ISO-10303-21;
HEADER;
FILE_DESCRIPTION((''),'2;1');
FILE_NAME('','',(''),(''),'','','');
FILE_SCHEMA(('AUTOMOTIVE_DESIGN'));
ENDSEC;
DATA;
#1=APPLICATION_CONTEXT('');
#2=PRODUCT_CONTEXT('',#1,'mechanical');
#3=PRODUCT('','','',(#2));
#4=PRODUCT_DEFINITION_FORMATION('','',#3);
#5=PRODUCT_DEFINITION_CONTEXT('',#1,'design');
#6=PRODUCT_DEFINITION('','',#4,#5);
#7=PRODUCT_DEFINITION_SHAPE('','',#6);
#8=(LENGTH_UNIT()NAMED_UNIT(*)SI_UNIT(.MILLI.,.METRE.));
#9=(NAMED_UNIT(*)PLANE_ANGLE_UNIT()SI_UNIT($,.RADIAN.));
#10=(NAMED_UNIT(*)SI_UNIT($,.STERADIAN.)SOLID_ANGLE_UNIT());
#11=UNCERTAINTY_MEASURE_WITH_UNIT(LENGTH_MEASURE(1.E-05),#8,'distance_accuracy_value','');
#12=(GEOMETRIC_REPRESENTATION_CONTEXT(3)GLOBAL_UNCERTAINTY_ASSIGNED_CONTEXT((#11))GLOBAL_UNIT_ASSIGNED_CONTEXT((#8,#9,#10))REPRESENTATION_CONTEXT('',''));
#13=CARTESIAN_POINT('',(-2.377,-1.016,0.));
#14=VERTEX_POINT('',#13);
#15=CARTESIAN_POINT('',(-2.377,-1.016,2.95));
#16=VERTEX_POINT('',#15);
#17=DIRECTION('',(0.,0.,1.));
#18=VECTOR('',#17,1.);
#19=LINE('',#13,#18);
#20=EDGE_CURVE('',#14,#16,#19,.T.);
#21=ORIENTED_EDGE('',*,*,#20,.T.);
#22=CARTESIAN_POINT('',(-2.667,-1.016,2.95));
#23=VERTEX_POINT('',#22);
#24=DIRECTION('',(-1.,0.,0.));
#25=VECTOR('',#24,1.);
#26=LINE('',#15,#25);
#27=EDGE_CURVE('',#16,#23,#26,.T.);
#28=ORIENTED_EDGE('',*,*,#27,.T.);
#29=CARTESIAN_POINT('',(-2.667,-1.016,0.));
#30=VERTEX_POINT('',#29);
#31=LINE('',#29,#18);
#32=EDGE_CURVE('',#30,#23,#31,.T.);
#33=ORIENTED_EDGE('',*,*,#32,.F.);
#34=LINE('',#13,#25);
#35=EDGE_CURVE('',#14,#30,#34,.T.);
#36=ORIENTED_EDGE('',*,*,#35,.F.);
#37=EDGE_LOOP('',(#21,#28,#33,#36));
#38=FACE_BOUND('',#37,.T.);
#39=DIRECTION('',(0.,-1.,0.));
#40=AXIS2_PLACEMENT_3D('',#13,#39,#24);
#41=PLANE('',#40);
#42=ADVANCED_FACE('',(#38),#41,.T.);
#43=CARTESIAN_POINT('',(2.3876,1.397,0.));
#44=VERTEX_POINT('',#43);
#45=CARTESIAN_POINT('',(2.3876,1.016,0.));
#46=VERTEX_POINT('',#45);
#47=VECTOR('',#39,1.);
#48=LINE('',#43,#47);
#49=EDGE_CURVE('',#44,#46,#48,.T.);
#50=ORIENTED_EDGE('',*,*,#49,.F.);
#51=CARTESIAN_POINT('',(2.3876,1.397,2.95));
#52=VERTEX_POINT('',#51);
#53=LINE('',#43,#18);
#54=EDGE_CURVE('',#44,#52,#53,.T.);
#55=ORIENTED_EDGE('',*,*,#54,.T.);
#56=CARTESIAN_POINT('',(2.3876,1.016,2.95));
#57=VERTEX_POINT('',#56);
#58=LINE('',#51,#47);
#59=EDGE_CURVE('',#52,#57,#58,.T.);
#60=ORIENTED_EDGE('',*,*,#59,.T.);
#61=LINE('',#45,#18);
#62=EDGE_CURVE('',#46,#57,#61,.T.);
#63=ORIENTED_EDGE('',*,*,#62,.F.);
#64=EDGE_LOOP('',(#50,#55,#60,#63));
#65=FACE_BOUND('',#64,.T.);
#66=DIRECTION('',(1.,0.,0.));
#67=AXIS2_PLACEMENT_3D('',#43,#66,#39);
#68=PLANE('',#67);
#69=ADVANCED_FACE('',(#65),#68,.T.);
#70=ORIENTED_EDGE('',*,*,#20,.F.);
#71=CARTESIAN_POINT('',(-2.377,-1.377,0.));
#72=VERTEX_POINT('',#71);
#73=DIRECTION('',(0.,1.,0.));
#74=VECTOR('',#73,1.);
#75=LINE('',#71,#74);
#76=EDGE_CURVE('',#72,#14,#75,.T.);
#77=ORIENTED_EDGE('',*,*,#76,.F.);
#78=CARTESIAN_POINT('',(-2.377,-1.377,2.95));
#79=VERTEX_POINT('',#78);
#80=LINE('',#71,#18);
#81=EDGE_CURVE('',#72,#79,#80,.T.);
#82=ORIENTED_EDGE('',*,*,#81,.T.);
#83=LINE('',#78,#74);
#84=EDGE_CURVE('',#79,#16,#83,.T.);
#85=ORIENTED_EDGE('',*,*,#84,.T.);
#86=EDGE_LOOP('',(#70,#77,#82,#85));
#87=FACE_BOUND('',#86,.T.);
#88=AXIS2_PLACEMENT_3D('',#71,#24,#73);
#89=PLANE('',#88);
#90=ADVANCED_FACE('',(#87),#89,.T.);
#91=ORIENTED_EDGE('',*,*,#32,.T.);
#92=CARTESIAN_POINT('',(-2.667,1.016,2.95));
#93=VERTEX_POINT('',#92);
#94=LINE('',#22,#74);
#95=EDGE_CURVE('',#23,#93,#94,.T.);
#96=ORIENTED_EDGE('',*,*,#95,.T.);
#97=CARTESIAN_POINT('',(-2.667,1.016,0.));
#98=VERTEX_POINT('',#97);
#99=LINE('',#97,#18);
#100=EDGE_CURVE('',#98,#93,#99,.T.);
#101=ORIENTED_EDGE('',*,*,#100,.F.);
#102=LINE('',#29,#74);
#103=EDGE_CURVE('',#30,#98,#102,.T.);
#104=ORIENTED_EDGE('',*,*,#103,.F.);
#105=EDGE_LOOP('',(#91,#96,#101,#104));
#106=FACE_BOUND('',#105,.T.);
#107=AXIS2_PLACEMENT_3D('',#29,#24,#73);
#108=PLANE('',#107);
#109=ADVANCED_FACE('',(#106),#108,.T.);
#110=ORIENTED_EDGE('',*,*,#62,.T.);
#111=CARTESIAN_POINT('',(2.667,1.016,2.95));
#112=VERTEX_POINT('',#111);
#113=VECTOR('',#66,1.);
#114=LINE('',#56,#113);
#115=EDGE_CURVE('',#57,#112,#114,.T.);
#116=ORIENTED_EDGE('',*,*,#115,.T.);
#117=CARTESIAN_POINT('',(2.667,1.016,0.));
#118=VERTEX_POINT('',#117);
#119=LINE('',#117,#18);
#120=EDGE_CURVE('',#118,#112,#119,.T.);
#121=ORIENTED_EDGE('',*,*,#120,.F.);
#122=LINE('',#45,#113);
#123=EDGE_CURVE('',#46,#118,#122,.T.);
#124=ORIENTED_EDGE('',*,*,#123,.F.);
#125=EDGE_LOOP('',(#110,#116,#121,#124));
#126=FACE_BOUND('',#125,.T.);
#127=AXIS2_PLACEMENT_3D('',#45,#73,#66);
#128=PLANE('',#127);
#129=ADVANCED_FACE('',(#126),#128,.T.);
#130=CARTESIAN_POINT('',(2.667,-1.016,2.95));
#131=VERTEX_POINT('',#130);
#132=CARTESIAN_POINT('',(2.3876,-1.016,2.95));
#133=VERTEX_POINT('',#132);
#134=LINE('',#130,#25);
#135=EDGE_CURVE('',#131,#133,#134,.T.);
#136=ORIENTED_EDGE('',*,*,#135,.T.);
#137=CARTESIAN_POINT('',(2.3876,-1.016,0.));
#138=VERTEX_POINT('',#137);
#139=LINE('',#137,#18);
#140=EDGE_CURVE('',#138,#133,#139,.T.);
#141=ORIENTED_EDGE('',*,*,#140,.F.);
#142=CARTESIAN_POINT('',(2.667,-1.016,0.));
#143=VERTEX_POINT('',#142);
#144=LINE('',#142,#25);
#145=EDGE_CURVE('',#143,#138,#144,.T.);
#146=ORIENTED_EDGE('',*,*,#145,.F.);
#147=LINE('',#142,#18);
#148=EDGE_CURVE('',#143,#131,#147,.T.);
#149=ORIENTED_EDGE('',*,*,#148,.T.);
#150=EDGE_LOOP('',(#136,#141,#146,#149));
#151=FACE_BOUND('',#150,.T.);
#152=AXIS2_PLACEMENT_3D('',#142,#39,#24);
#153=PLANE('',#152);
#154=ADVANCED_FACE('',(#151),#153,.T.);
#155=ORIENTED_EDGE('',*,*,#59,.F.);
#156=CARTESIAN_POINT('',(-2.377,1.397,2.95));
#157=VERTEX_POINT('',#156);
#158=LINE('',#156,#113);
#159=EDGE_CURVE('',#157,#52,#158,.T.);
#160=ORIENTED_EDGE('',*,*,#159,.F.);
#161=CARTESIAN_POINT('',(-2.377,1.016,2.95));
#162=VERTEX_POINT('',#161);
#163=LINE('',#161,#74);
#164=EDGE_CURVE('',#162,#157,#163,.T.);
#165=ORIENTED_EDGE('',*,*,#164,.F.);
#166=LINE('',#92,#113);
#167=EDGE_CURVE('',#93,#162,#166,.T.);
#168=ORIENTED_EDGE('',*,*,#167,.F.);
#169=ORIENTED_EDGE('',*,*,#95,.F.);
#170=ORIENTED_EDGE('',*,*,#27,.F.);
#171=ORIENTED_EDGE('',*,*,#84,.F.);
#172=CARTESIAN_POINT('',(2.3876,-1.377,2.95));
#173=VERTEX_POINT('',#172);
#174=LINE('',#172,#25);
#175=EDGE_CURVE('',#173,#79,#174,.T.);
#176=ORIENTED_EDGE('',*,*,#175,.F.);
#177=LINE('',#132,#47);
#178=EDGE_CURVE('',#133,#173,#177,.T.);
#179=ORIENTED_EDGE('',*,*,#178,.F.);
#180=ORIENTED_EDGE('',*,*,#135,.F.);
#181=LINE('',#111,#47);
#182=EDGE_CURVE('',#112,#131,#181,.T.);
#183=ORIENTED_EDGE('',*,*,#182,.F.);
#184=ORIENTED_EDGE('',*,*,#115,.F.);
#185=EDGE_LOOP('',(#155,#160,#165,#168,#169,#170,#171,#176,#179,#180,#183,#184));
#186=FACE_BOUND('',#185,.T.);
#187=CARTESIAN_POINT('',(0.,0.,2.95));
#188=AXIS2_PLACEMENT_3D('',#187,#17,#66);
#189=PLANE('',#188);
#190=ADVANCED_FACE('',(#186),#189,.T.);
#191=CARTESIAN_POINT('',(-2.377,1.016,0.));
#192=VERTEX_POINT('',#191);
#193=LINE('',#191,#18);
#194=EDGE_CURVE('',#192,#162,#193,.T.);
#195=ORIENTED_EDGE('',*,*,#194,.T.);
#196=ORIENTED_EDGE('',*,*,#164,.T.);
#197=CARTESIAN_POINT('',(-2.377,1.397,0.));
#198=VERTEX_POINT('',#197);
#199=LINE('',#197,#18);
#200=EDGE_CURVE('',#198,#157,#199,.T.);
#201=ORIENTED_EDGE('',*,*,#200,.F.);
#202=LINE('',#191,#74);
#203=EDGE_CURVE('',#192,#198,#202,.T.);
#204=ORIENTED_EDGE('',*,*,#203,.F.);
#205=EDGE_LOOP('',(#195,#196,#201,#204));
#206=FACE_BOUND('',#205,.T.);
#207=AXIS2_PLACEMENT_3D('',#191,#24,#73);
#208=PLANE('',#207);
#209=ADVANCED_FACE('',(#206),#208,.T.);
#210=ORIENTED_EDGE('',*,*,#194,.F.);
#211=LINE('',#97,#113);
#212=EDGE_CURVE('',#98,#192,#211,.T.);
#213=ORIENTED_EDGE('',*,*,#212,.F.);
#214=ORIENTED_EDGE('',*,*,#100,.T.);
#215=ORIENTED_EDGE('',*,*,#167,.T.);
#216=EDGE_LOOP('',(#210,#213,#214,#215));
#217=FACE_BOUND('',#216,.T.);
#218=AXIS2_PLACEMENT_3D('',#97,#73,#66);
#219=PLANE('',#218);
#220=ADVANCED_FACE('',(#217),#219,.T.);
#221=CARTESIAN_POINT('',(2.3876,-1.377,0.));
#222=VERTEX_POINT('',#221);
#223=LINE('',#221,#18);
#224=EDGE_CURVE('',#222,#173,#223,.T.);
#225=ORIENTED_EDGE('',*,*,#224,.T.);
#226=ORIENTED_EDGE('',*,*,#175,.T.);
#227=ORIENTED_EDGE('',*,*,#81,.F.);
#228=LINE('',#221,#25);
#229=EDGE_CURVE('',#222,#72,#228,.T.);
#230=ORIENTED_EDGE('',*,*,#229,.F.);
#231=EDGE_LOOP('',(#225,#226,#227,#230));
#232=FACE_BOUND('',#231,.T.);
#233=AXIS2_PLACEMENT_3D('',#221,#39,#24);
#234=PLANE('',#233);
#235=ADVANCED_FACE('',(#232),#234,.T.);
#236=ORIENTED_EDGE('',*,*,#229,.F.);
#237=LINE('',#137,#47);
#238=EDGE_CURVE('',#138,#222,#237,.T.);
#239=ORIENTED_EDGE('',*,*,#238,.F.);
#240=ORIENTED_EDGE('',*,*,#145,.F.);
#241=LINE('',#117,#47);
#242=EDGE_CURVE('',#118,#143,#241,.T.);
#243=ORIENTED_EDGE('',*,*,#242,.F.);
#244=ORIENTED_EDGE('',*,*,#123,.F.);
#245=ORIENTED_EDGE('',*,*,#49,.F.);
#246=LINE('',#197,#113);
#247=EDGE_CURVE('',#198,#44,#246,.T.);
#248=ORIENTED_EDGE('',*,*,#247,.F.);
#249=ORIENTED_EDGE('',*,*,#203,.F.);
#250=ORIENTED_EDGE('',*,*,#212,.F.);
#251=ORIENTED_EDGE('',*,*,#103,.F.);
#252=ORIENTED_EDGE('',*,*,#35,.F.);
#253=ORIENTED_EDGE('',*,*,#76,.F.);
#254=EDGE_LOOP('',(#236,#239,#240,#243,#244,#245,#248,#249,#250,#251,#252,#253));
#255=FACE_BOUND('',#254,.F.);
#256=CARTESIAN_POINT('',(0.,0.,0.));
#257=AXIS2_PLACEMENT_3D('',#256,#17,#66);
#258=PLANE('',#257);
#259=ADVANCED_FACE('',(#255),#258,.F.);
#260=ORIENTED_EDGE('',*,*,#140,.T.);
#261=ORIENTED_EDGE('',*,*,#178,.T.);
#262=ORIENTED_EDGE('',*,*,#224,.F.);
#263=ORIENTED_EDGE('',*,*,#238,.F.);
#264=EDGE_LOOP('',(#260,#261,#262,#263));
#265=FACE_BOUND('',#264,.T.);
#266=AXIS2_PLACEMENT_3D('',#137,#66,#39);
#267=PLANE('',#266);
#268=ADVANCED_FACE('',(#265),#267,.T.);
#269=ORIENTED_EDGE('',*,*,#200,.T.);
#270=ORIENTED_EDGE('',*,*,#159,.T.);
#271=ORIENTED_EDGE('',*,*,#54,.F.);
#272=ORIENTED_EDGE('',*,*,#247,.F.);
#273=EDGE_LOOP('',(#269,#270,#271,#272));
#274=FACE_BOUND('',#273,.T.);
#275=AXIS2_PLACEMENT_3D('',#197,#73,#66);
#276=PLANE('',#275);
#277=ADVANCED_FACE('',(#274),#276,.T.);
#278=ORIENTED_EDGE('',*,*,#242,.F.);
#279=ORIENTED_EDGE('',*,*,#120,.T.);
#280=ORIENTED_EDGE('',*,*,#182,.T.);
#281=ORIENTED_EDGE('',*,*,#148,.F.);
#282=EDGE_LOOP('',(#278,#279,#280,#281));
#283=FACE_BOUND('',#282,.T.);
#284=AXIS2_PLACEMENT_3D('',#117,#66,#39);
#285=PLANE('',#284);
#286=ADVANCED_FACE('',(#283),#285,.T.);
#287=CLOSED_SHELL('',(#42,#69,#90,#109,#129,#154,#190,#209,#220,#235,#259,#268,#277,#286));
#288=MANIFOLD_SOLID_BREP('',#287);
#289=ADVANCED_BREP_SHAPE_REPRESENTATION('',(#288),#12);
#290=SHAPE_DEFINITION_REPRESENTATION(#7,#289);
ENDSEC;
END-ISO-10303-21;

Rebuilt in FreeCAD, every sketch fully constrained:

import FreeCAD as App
import Part
import Sketcher

V = App.Vector
Q = App.Units.Quantity


def add_polygon(sketch, points):
    """Adds a closed chain of lines whose ends are joined by coincident constraints."""
    first, n = sketch.GeometryCount, len(points)
    for a, b in zip(points, points[1:] + points[:1]):
        sketch.addGeometry(Part.LineSegment(App.Vector(*a, 0), App.Vector(*b, 0)), False)
    for i in range(n):
        sketch.addConstraint(Sketcher.Constraint("Coincident", first + i, 2, first + (i + 1) % n, 1))

doc = App.newDocument("Part")
body = doc.addObject("PartDesign::Body", "Body")

sketch1 = doc.addObject("Sketcher::SketchObject", "Sketch")
body.addObject(sketch1)
sketch1.AttachmentSupport = (doc.XY_Plane, [""])
sketch1.MapMode = "FlatFace"
add_polygon(sketch1, [(2.67, 1.02), (2.39, 1.02), (2.39, 1.4), (-2.38, 1.4), (-2.38, 1.02), (-2.67, 1.02), (-2.67, -1.02), (-2.38, -1.02), (-2.38, -1.38), (2.39, -1.38), (2.39, -1.02), (2.67, -1.02)])
sketch1.addConstraint(Sketcher.Constraint("Horizontal", 0))
sketch1.addConstraint(Sketcher.Constraint("Vertical", 1))
sketch1.addConstraint(Sketcher.Constraint("Horizontal", 2))
sketch1.addConstraint(Sketcher.Constraint("Vertical", 3))
sketch1.addConstraint(Sketcher.Constraint("Horizontal", 4))
sketch1.addConstraint(Sketcher.Constraint("Vertical", 5))
sketch1.addConstraint(Sketcher.Constraint("Horizontal", 6))
sketch1.addConstraint(Sketcher.Constraint("Vertical", 7))
sketch1.addConstraint(Sketcher.Constraint("Horizontal", 8))
sketch1.addConstraint(Sketcher.Constraint("Vertical", 9))
sketch1.addConstraint(Sketcher.Constraint("Horizontal", 10))
sketch1.addConstraint(Sketcher.Constraint("Vertical", 11))
sketch1.addConstraint(Sketcher.Constraint("Symmetric", 4, 2, 10, 2, -1, 1))
sketch1.addConstraint(Sketcher.Constraint("Symmetric", 3, 2, 6, 2, -1))
sketch1.addConstraint(Sketcher.Constraint("Symmetric", 0, 2, 9, 2, -1))
sketch1.addConstraint(Sketcher.Constraint("DistanceY", 5, 2, 5, 1, Q("0.08 in")))
sketch1.addConstraint(Sketcher.Constraint("DistanceX", 0, 2, 0, 1, Q("0.011 in")))
sketch1.addConstraint(Sketcher.Constraint("DistanceY", 1, 1, 1, 2, Q("0.015 in")))
sketch1.addConstraint(Sketcher.Constraint("DistanceX", -1, 1, 0, 2, Q("0.094 in")))
sketch1.addConstraint(Sketcher.Constraint("DistanceX", 2, 2, 2, 1, 4.7646))
sketch1.addConstraint(Sketcher.Constraint("DistanceY", 7, 2, 7, 1, 0.361))
pad1 = doc.addObject("PartDesign::Pad", "Pad")
body.addObject(pad1)
pad1.Profile = sketch1
pad1.Length = 2.95

doc.recompute()
